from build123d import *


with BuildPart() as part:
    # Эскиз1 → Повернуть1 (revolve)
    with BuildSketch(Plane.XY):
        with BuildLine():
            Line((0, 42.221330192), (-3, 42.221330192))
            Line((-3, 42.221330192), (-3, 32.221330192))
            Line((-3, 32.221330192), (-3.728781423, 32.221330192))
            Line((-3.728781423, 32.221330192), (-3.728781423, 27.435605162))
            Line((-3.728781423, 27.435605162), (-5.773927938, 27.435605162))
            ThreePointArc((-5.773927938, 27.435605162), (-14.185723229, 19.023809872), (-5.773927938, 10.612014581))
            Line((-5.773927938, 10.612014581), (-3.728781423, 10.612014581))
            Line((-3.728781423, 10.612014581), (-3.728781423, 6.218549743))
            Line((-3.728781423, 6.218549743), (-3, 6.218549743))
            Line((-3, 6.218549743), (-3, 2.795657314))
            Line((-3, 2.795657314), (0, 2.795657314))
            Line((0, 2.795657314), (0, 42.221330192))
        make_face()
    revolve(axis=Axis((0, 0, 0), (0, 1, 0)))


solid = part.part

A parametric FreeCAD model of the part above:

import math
import FreeCAD as App
import Part
import Sketcher

V = App.Vector
Q = App.Units.Quantity

doc = App.newDocument("Part")
params = doc.addObject("Spreadsheet::Sheet", "Params")
for row, (alias, value) in enumerate([
    ("sketch1_width", "3 mm"),
    ("sketch1_height", "10 mm"),
    ("revolution_angle", "360 deg"),
], start=1):
    params.set(f"A{row}", alias)
    params.set(f"B{row}", "=" + value)
    params.setAlias(f"B{row}", alias)

body = doc.addObject("PartDesign::Body", "Body")

# Sketch on XY plane
sketch1 = body.newObject("Sketcher::SketchObject", "Sketch")
sketch1.AttachmentSupport = (doc.getObject("XY_Plane"), [""])
sketch1.MapMode = "FlatFace"
sketch1.addGeometry([
    Part.LineSegment(V(0, 42.2, 0), V(-3, 42.2, 0)),  # 0
    Part.LineSegment(V(-3, 42.2, 0), V(-3, 32.2, 0)),  # 1
    Part.LineSegment(V(-3, 32.2, 0), V(-3.7, 32.2, 0)),  # 2
    Part.LineSegment(V(-3.7, 32.2, 0), V(-3.7, 27.4, 0)),  # 3
    Part.LineSegment(V(-3.7, 27.4, 0), V(-5.8, 27.4, 0)),  # 4
    Part.ArcOfCircle(Part.Circle(V(-5.8, 19, 0), V(0, 0, 1), 8.4), math.radians(90), math.radians(270)),  # 5
    Part.LineSegment(V(-5.8, 10.6, 0), V(-3.7, 10.6, 0)),  # 6
    Part.LineSegment(V(-3.7, 10.6, 0), V(-3.7, 6.2, 0)),  # 7
    Part.LineSegment(V(-3.7, 6.2, 0), V(-3, 6.2, 0)),  # 8
    Part.LineSegment(V(-3, 6.2, 0), V(-3, 2.8, 0)),  # 9
    Part.LineSegment(V(-3, 2.8, 0), V(0, 2.8, 0)),  # 10
    Part.LineSegment(V(0, 2.8, 0), V(0, 42.2, 0)),  # 11
], False)
sketch1.addConstraint([
    Sketcher.Constraint("Coincident", 0, 2, 1, 1),
    Sketcher.Constraint("Coincident", 1, 2, 2, 1),
    Sketcher.Constraint("Coincident", 2, 2, 3, 1),
    Sketcher.Constraint("Coincident", 3, 2, 4, 1),
    Sketcher.Constraint("Tangent", 4, 2, 5, 1),
    Sketcher.Constraint("Tangent", 5, 2, 6, 1),
    Sketcher.Constraint("Coincident", 6, 2, 7, 1),
    Sketcher.Constraint("Coincident", 7, 2, 8, 1),
    Sketcher.Constraint("Coincident", 8, 2, 9, 1),
    Sketcher.Constraint("Coincident", 9, 2, 10, 1),
    Sketcher.Constraint("Coincident", 10, 2, 11, 1),
    Sketcher.Constraint("Coincident", 11, 2, 0, 1),
    Sketcher.Constraint("Horizontal", 0),
    Sketcher.Constraint("Vertical", 1),
    Sketcher.Constraint("Horizontal", 2),
    Sketcher.Constraint("Vertical", 3),
    Sketcher.Constraint("Horizontal", 4),
    Sketcher.Constraint("Horizontal", 6),
    Sketcher.Constraint("Vertical", 7),
    Sketcher.Constraint("Horizontal", 8),
    Sketcher.Constraint("Vertical", 9),
    Sketcher.Constraint("Horizontal", 10),
    Sketcher.Constraint("Vertical", 11),
    Sketcher.Constraint("PointOnObject", 10, 2, -2),
    Sketcher.Constraint("Vertical", 3, 2, 6, 2),
    Sketcher.Constraint("Vertical", 1, 2, 8, 2),
    Sketcher.Constraint("DistanceX", 0, 2, 0, 1, Q("3 mm")),
    Sketcher.Constraint("DistanceY", 1, 2, 1, 1, Q("10 mm")),
    Sketcher.Constraint("Radius", 5, Q("8.411795 mm")),
    Sketcher.Constraint("DistanceX", 2, 2, 2, 1, Q("0.728781 mm")),
    Sketcher.Constraint("DistanceX", 4, 2, 4, 1, Q("2.045147 mm")),
    Sketcher.Constraint("DistanceY", 3, 2, 3, 1, Q("4.785725 mm")),
    Sketcher.Constraint("DistanceY", 7, 2, 7, 1, Q("4.393465 mm")),
    Sketcher.Constraint("DistanceY", 9, 2, 9, 1, Q("3.422892 mm")),
    Sketcher.Constraint("DistanceY", -1, 1, 5, 3, Q("19.02381 mm")),
])
sketch1.setExpression("Constraints[26]", "Params.sketch1_width")
sketch1.setExpression("Constraints[27]", "Params.sketch1_height")
revolution = body.newObject("PartDesign::Revolution", "Revolution")
revolution.Profile = sketch1
revolution.ReferenceAxis = (sketch1, ["V_Axis"])
revolution.setExpression("Angle", "Params.revolution_angle")

doc.recompute()
